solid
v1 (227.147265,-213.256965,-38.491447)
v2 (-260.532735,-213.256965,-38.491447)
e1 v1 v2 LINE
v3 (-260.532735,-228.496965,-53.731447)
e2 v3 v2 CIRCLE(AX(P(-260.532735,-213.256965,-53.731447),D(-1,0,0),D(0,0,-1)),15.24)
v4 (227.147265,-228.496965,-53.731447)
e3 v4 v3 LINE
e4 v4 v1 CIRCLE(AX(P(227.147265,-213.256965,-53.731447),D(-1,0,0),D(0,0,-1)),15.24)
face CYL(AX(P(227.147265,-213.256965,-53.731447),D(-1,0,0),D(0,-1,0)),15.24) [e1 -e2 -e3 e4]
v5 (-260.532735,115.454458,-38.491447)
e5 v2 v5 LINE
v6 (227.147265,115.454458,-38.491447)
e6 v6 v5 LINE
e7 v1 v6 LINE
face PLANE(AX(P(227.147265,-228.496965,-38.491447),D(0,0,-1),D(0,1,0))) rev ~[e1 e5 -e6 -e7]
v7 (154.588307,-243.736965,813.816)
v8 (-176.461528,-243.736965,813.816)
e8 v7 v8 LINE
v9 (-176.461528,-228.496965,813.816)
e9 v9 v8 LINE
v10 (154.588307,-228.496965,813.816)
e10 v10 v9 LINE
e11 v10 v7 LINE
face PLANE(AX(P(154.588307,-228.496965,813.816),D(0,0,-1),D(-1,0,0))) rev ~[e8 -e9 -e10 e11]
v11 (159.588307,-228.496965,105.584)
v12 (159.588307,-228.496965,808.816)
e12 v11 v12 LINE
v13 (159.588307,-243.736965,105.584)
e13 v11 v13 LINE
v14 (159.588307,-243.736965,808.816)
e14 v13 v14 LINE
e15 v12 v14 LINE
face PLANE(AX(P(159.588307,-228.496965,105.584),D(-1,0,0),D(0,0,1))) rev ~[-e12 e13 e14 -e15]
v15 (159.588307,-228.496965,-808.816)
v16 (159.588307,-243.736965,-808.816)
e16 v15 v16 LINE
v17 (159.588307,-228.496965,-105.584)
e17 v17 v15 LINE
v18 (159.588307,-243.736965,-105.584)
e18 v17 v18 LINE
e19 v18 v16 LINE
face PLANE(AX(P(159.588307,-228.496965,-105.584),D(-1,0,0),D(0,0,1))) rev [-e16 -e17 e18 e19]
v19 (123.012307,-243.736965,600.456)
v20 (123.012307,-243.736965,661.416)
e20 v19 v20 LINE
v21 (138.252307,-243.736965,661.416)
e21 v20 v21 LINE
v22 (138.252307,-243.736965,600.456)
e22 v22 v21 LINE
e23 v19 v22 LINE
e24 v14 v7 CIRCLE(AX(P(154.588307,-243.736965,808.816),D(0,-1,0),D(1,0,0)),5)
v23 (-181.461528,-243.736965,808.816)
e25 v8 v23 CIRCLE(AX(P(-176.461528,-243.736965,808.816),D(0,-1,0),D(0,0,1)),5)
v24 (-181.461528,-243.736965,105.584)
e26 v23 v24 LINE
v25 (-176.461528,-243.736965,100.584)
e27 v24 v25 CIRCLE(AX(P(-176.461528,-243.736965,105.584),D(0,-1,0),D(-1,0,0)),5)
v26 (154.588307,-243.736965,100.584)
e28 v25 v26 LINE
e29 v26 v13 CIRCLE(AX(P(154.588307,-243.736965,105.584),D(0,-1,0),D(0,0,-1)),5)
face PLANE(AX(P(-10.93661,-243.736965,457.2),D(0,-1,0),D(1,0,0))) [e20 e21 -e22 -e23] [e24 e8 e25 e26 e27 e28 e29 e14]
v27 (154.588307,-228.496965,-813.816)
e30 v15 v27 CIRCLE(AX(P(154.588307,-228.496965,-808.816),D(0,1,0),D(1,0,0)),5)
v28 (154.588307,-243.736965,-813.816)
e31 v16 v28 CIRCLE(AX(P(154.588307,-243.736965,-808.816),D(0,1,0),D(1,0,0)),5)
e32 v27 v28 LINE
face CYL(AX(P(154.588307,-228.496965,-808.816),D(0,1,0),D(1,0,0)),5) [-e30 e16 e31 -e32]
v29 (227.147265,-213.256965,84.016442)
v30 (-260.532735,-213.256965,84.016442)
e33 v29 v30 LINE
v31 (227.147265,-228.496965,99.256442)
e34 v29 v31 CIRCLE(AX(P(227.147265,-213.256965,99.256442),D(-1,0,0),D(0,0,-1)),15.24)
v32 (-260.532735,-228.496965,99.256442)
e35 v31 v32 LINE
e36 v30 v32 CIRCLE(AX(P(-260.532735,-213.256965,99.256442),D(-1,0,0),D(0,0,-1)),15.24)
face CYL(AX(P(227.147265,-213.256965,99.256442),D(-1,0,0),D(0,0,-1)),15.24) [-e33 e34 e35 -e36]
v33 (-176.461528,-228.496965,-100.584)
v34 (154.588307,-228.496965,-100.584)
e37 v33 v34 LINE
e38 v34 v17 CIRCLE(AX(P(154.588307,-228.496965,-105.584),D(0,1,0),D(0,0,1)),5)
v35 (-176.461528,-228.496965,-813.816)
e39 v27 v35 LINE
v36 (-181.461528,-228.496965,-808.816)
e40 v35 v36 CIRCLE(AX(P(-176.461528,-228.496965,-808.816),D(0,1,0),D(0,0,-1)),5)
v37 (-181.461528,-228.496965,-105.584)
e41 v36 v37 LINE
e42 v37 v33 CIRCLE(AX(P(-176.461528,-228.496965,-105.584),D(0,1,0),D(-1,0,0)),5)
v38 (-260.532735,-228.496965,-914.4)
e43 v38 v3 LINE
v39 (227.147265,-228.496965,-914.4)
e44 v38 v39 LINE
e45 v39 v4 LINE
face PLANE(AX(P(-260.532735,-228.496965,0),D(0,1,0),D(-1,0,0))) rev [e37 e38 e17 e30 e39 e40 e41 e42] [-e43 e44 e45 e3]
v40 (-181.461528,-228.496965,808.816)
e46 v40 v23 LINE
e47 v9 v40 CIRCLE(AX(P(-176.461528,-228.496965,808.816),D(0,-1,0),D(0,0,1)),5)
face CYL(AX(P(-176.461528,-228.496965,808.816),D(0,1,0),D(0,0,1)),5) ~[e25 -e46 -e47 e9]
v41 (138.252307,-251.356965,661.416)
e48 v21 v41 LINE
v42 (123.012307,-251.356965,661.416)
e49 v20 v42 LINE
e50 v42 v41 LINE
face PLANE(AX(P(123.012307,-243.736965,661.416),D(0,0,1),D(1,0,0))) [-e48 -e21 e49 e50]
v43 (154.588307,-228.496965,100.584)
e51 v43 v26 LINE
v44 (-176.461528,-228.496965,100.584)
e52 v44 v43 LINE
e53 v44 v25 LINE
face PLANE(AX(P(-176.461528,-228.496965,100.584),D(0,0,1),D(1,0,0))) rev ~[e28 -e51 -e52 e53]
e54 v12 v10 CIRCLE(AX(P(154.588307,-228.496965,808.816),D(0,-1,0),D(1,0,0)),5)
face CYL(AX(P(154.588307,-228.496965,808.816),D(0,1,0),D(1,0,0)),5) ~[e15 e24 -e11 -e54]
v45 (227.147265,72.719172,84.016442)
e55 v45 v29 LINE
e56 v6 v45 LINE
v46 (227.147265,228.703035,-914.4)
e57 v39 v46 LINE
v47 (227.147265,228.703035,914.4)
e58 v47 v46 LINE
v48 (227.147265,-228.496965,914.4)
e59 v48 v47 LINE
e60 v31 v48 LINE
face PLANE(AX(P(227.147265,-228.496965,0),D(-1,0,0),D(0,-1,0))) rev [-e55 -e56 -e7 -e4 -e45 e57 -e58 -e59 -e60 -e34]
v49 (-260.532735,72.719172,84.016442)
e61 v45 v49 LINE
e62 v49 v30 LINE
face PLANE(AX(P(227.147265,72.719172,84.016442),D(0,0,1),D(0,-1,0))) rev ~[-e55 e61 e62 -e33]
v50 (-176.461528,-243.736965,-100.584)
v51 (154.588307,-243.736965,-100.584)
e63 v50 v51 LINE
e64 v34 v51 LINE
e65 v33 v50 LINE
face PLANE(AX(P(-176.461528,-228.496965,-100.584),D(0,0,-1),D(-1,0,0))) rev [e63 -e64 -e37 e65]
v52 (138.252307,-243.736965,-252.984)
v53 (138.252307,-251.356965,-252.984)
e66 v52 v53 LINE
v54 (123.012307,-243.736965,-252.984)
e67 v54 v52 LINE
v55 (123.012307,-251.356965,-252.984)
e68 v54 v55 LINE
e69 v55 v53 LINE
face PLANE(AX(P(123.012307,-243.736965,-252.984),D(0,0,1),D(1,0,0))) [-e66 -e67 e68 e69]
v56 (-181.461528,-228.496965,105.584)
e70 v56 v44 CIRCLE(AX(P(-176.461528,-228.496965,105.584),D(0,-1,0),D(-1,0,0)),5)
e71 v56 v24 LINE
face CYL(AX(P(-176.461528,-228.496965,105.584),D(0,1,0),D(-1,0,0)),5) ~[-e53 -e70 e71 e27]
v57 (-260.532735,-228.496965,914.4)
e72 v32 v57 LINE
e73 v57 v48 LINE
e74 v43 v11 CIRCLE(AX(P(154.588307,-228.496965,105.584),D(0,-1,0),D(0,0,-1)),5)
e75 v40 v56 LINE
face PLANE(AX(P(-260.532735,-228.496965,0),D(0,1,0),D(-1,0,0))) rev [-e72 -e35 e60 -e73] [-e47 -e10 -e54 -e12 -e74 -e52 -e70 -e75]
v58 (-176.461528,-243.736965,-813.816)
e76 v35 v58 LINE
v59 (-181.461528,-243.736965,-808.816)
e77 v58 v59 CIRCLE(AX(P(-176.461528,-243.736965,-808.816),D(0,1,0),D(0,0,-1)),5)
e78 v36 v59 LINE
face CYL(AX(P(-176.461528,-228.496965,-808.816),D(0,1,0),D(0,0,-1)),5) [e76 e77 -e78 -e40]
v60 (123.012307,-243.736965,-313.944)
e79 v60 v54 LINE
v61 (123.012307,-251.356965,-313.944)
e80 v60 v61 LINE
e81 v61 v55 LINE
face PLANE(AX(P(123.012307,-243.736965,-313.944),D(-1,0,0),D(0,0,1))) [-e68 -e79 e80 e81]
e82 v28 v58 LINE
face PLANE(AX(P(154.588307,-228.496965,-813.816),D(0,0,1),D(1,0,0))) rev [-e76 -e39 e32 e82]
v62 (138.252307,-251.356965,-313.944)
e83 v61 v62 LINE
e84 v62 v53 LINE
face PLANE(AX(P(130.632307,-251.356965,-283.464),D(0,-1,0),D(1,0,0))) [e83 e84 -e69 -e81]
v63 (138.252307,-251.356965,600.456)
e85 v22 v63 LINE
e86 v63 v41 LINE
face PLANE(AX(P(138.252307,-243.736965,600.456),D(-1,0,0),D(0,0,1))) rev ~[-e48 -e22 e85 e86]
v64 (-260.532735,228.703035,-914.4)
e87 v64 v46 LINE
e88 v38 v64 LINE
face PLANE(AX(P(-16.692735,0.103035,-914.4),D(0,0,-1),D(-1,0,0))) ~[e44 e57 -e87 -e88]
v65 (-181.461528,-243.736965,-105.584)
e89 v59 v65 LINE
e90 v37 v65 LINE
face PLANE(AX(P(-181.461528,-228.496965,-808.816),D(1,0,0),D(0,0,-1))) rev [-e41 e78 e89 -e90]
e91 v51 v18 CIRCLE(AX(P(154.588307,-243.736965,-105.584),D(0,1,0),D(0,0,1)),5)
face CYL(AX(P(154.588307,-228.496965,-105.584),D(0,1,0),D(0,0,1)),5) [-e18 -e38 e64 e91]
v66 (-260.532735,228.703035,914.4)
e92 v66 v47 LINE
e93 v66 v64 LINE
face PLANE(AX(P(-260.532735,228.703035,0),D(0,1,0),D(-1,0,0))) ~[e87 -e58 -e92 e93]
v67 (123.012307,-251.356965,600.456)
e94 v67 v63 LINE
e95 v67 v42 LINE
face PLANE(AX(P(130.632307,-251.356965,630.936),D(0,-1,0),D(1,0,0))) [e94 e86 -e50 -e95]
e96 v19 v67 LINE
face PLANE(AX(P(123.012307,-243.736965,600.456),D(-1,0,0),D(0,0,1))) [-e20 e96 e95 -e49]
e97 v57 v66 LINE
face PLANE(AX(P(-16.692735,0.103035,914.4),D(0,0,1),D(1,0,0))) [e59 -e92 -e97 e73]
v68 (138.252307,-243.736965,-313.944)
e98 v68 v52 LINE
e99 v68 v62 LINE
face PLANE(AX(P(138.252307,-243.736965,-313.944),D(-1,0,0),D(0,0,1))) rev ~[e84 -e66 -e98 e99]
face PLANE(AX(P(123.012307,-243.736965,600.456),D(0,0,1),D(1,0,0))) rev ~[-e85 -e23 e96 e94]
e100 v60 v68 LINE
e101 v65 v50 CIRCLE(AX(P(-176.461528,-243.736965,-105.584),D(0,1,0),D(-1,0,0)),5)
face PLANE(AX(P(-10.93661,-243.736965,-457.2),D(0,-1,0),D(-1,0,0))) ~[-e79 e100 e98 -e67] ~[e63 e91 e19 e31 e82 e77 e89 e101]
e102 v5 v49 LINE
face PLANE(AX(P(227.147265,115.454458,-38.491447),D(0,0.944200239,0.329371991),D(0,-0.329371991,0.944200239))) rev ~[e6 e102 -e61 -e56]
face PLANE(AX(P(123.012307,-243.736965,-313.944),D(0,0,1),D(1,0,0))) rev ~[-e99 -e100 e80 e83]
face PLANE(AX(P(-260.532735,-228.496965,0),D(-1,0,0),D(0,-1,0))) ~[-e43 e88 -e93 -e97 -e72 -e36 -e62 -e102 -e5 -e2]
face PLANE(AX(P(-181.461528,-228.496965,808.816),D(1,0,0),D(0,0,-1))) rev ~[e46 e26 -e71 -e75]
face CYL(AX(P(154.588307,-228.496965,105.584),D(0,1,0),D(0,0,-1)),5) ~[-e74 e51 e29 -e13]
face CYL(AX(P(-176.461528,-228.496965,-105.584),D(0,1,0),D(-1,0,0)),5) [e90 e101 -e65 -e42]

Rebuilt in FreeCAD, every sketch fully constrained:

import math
import FreeCAD as App
import Part
import Sketcher

V = App.Vector
Q = App.Units.Quantity


def edges_at(feature, points):
    """Names of the edges that pass closest to the given points."""
    edges = feature.Shape.Edges
    near = lambda p: min(range(len(edges)), key=lambda i: edges[i].distToShape(Part.Vertex(*p))[0])
    return sorted({f"Edge{near(p) + 1}" for p in points})

doc = App.newDocument("Part")
body = doc.addObject("PartDesign::Body", "Body")

# Sketch on XY plane
sketch1 = body.newObject("Sketcher::SketchObject", "Sketch")
sketch1.AttachmentSupport = (doc.getObject("XY_Plane"), [""])
sketch1.MapMode = "FlatFace"
sketch1.addGeometry([
    Part.LineSegment(V(-260.532735, 228.703035, 0), V(-260.532735, -228.496965, 0)),
    Part.LineSegment(V(-260.532735, -228.496965, 0), V(227.147265, -228.496965, 0)),
    Part.LineSegment(V(227.147265, -228.496965, 0), V(227.147265, 228.703035, 0)),
    Part.LineSegment(V(227.147265, 228.703035, 0), V(-260.532735, 228.703035, 0)),
], False)
sketch1.addConstraint([
    Sketcher.Constraint("Coincident", 0, 2, 1, 1),
    Sketcher.Constraint("Coincident", 1, 2, 2, 1),
    Sketcher.Constraint("Coincident", 2, 2, 3, 1),
    Sketcher.Constraint("Coincident", 3, 2, 0, 1),
    Sketcher.Constraint("Vertical", 0),
    Sketcher.Constraint("Horizontal", 1),
    Sketcher.Constraint("Vertical", 2),
    Sketcher.Constraint("Horizontal", 3),
    Sketcher.Constraint("DistanceY", 0, 2, 0, 1, Q("18 in")),
    Sketcher.Constraint("DistanceX", 1, 1, 1, 2, Q("19.2 in")),
    Sketcher.Constraint("DistanceX", 0, 2, -1, 1, 260.532735),
    Sketcher.Constraint("DistanceY", 0, 2, -1, 1, 228.496965),
])
pad1 = body.newObject("PartDesign::Pad", "Pad")
pad1.Profile = sketch1
pad1.Length = Q("36 in")

# Sketch on XZ plane
sketch2 = body.newObject("Sketcher::SketchObject", "Sketch001")
sketch2.AttachmentSupport = (doc.getObject("XZ_Plane"), [""])
sketch2.MapMode = "FlatFace"
sketch2.AttachmentOffset = App.Placement(V(0, 0, 228.496965), App.Rotation())
sketch2.addGeometry([
    Part.ArcOfCircle(Part.Circle(V(-176.461528, 105.584, 0), V(0, 0, 1), 5), math.radians(180), math.radians(270)),  # 0
    Part.LineSegment(V(-176.461528, 100.584, 0), V(154.588307, 100.584, 0)),  # 1
    Part.ArcOfCircle(Part.Circle(V(154.588307, 105.584, 0), V(0, 0, 1), 5), math.radians(-90), math.radians(0)),  # 2
    Part.LineSegment(V(159.588307, 105.584, 0), V(159.588307, 808.816, 0)),  # 3
    Part.ArcOfCircle(Part.Circle(V(154.588307, 808.816, 0), V(0, 0, 1), 5), math.radians(0), math.radians(90)),  # 4
    Part.LineSegment(V(154.588307, 813.816, 0), V(-176.461528, 813.816, 0)),  # 5
    Part.ArcOfCircle(Part.Circle(V(-176.461528, 808.816, 0), V(0, 0, 1), 5), math.radians(90), math.radians(180)),  # 6
    Part.LineSegment(V(-181.461528, 808.816, 0), V(-181.461528, 105.584, 0)),  # 7
], False)
sketch2.addConstraint([
    Sketcher.Constraint("Tangent", 0, 2, 1, 1),
    Sketcher.Constraint("Tangent", 1, 2, 2, 1),
    Sketcher.Constraint("Tangent", 2, 2, 3, 1),
    Sketcher.Constraint("Tangent", 3, 2, 4, 1),
    Sketcher.Constraint("Tangent", 4, 2, 5, 1),
    Sketcher.Constraint("Tangent", 5, 2, 6, 1),
    Sketcher.Constraint("Tangent", 6, 2, 7, 1),
    Sketcher.Constraint("Tangent", 7, 2, 0, 1),
    Sketcher.Constraint("Horizontal", 1),
    Sketcher.Constraint("Vertical", 3),
    Sketcher.Constraint("Horizontal", 5),
    Sketcher.Constraint("Vertical", 7),
    Sketcher.Constraint("Equal", 0, 2),
    Sketcher.Constraint("Equal", 2, 4),
    Sketcher.Constraint("Equal", 4, 6),
    Sketcher.Constraint("DistanceY", -1, 1, 0, 2, Q("3.96 in")),
    Sketcher.Constraint("DistanceY", -1, 1, 4, 2, Q("32.04 in")),
    Sketcher.Constraint("Radius", 0, 5.0),
    Sketcher.Constraint("DistanceX", 1, 1, 1, 2, 331.049835),
    Sketcher.Constraint("DistanceX", 0, 3, -1, 1, 176.461528),
])
pad2 = body.newObject("PartDesign::Pad", "Pad001")
pad2.Profile = sketch2
pad2.Length = Q("0.6 in")
body2 = doc.addObject("PartDesign::Body", "Body001")
doc.recompute()

body2.BaseFeature = body
doc.recompute()

mirroring = doc.addObject("Part::Mirroring", "Mirroring")
mirroring.Source = body
mirroring.Base = V(-16.692735, 0.103035, 0)
mirroring.Normal = V(0, 0, -1)
body3 = doc.addObject("PartDesign::Body", "Body002")
body3.BaseFeature = mirroring
boolean = body2.newObject("PartDesign::Boolean", "Boolean")
boolean.Type = "Fuse"
boolean.addObjects([body3])
doc.recompute()

# Sketch on XZ plane
sketch3 = body2.newObject("Sketcher::SketchObject", "Sketch002")
sketch3.AttachmentSupport = (doc.getObject("XZ_Plane001"), [""])
sketch3.MapMode = "FlatFace"
sketch3.AttachmentOffset = App.Placement(V(0, 0, 243.736965), App.Rotation())
sketch3.addGeometry([
    Part.LineSegment(V(123.012307, 661.416, 0), V(123.012307, 600.456, 0)),  # 0
    Part.LineSegment(V(123.012307, 600.456, 0), V(138.252307, 600.456, 0)),  # 1
    Part.LineSegment(V(138.252307, 600.456, 0), V(138.252307, 661.416, 0)),  # 2
    Part.LineSegment(V(138.252307, 661.416, 0), V(123.012307, 661.416, 0)),  # 3
    Part.LineSegment(V(123.012307, -252.984, 0), V(123.012307, -313.944, 0)),  # 4
    Part.LineSegment(V(123.012307, -313.944, 0), V(138.252307, -313.944, 0)),  # 5
    Part.LineSegment(V(138.252307, -313.944, 0), V(138.252307, -252.984, 0)),  # 6
    Part.LineSegment(V(138.252307, -252.984, 0), V(123.012307, -252.984, 0)),  # 7
], False)
sketch3.addConstraint([
    Sketcher.Constraint("Coincident", 0, 2, 1, 1),
    Sketcher.Constraint("Coincident", 1, 2, 2, 1),
    Sketcher.Constraint("Coincident", 2, 2, 3, 1),
    Sketcher.Constraint("Coincident", 3, 2, 0, 1),
    Sketcher.Constraint("Coincident", 4, 2, 5, 1),
    Sketcher.Constraint("Coincident", 5, 2, 6, 1),
    Sketcher.Constraint("Coincident", 6, 2, 7, 1),
    Sketcher.Constraint("Coincident", 7, 2, 4, 1),
    Sketcher.Constraint("Vertical", 0),
    Sketcher.Constraint("Horizontal", 1),
    Sketcher.Constraint("Vertical", 2),
    Sketcher.Constraint("Horizontal", 3),
    Sketcher.Constraint("Vertical", 4),
    Sketcher.Constraint("Horizontal", 5),
    Sketcher.Constraint("Vertical", 6),
    Sketcher.Constraint("Horizontal", 7),
    Sketcher.Constraint("Vertical", 3, 2, 4, 2),
    Sketcher.Constraint("Vertical", 2, 2, 5, 2),
    Sketcher.Constraint("Equal", 2, 4),
    Sketcher.Constraint("DistanceX", 1, 1, 1, 2, Q("0.6 in")),
    Sketcher.Constraint("DistanceY", 0, 2, 0, 1, Q("2.4 in")),
    Sketcher.Constraint("DistanceY", 4, 2, 0, 2, Q("36 in")),
    Sketcher.Constraint("DistanceY", -1, 1, 0, 2, Q("23.64 in")),
    Sketcher.Constraint("DistanceX", -1, 1, 0, 2, 123.012307),
])
pad3 = body2.newObject("PartDesign::Pad", "Pad002")
pad3.Profile = sketch3
pad3.Length = Q("0.3 in")

# Sketch on YZ plane
sketch4 = body2.newObject("Sketcher::SketchObject", "Sketch003")
sketch4.AttachmentSupport = (doc.getObject("YZ_Plane001"), [""])
sketch4.MapMode = "FlatFace"
sketch4.AttachmentOffset = App.Placement(V(0, 0, 227.147265), App.Rotation())
sketch4.addGeometry([
    Part.LineSegment(V(72.719172, 84.016442, 0), V(-228.496965, 84.016442, 0)),
    Part.LineSegment(V(-228.496965, 84.016442, 0), V(-228.496965, -38.491447, 0)),
    Part.LineSegment(V(-228.496965, -38.491447, 0), V(115.454458, -38.491447, 0)),
    Part.LineSegment(V(115.454458, -38.491447, 0), V(72.719172, 84.016442, 0)),
], False)
sketch4.addConstraint([
    Sketcher.Constraint("Coincident", 0, 2, 1, 1),
    Sketcher.Constraint("Coincident", 1, 2, 2, 1),
    Sketcher.Constraint("Coincident", 2, 2, 3, 1),
    Sketcher.Constraint("Coincident", 3, 2, 0, 1),
    Sketcher.Constraint("Horizontal", 0),
    Sketcher.Constraint("Vertical", 1),
    Sketcher.Constraint("Horizontal", 2),
    Sketcher.Constraint("DistanceY", 1, 2, 1, 1, 122.507889),
    Sketcher.Constraint("DistanceX", 0, 2, 0, 1, 301.216137),
    Sketcher.Constraint("DistanceX", 2, 1, 2, 2, 343.951423),
    Sketcher.Constraint("DistanceX", -1, 1, 3, 2, 72.719172),
    Sketcher.Constraint("DistanceY", -1, 1, 0, 2, 84.016442),
])
pocket1 = body2.newObject("PartDesign::Pocket", "Pocket")
pocket1.Profile = sketch4
pocket1.Length = Q("19.2 in")
doc.recompute()

fillet = body2.newObject("PartDesign::Fillet", "Fillet")
fillet.Base = (pocket1, edges_at(pocket1, [(-16.693, -228.497, -38.491), (-16.693, -228.497, 84.016)]))
fillet.Radius = Q("0.6 in")
mirroring.Visibility = False

doc.recompute()
